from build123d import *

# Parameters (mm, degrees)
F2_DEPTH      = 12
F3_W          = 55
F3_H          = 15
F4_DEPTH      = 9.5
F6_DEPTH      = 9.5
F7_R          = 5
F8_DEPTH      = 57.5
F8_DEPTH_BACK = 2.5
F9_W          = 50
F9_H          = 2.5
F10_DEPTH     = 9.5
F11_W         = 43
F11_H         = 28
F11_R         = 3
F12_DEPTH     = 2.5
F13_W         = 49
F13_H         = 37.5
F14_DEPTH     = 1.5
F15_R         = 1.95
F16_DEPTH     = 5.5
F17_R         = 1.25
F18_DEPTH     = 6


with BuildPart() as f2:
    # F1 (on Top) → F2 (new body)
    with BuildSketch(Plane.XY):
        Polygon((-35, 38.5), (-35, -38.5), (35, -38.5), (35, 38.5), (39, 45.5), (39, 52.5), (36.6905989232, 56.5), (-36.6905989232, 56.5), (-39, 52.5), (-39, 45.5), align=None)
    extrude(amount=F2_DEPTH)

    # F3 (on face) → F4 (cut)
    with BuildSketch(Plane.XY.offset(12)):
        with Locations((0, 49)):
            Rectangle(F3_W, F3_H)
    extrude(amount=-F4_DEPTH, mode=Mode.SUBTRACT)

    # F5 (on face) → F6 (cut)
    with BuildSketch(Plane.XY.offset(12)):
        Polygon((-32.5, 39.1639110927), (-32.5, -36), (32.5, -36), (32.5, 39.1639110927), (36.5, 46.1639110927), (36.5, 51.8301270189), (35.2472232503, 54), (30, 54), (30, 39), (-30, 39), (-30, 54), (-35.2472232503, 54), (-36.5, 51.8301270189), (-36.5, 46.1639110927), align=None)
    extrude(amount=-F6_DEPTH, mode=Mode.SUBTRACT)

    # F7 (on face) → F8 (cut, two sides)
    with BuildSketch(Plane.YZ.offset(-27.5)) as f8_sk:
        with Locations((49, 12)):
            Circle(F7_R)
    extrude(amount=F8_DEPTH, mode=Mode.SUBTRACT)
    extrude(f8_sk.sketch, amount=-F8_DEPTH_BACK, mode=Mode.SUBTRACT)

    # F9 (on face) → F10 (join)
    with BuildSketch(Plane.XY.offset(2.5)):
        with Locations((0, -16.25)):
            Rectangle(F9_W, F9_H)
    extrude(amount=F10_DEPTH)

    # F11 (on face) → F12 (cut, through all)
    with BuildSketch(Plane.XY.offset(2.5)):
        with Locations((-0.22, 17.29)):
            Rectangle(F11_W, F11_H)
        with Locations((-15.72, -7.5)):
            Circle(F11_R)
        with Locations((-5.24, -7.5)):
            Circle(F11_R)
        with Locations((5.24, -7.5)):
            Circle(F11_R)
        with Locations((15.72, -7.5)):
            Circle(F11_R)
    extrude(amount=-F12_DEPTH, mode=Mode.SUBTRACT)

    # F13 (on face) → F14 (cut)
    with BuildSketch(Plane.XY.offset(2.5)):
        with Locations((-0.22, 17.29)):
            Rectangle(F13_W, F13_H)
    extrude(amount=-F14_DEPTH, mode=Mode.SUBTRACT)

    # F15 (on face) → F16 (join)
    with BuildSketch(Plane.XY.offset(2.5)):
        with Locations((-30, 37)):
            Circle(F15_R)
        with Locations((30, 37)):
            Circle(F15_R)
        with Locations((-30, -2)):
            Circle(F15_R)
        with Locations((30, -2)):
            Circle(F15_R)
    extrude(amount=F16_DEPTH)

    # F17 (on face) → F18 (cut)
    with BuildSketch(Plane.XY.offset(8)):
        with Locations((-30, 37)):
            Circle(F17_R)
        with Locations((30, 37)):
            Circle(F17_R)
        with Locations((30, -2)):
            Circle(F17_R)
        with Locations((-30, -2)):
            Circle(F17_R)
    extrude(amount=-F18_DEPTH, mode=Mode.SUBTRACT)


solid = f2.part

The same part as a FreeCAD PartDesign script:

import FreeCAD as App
import Part
import Sketcher
from FreeCAD import Vector
Q = App.Units.Quantity


def add_polygon(sketch, points):
    """Adds a closed chain of lines whose ends are joined by coincident constraints."""
    first, n = sketch.GeometryCount, len(points)
    for a, b in zip(points, points[1:] + points[:1]):
        sketch.addGeometry(Part.LineSegment(App.Vector(*a, 0), App.Vector(*b, 0)), False)
    for i in range(n):
        sketch.addConstraint(Sketcher.Constraint("Coincident", first + i, 2, first + (i + 1) % n, 1))

doc = App.newDocument("Part")
body = doc.addObject("PartDesign::Body", "Body")

# Sketch on XY plane
sketch1 = body.newObject("Sketcher::SketchObject", "Sketch")
sketch1.AttachmentSupport = (doc.getObject("XY_Plane"), [""])
sketch1.MapMode = "FlatFace"
add_polygon(sketch1, [(-35, 38.5), (-35, -38.5), (35, -38.5), (35, 38.5), (39, 45.5), (39, 52.5), (36.690599, 56.5), (-36.690599, 56.5), (-39, 52.5), (-39, 45.5)])  # lines 0-9
sketch1.addConstraint([
    Sketcher.Constraint("Vertical", 0),
    Sketcher.Constraint("Horizontal", 1),
    Sketcher.Constraint("Vertical", 2),
    Sketcher.Constraint("Vertical", 4),
    Sketcher.Constraint("Horizontal", 6),
    Sketcher.Constraint("Vertical", 8),
    Sketcher.Constraint("Symmetric", 0, 2, 2, 2, -1, 1),
    Sketcher.Constraint("Symmetric", 4, 2, 7, 2, -2),
    Sketcher.Constraint("Horizontal", 3, 2, 8, 2),
    Sketcher.Constraint("Horizontal", 2, 2, 9, 2),
    Sketcher.Constraint("Equal", 5, 7),
    Sketcher.Constraint("DistanceX", 1, 1, 1, 2, 70.0),
    Sketcher.Constraint("DistanceY", 0, 2, 0, 1, 77.0),
    Sketcher.Constraint("DistanceY", 4, 1, 4, 2, 7.0),
    Sketcher.Constraint("Angle", 5, Q("120 deg")),
    Sketcher.Constraint("DistanceX", -1, 1, 3, 2, 39.0),
    Sketcher.Constraint("DistanceY", 2, 2, 3, 2, 7.0),
    Sketcher.Constraint("DistanceY", 4, 2, 5, 2, 4.0),
])
pad1 = body.newObject("PartDesign::Pad", "Pad")
pad1.Profile = sketch1
pad1.Length = 12

# Sketch on XY plane
sketch2 = body.newObject("Sketcher::SketchObject", "Sketch001")
sketch2.AttachmentSupport = (doc.getObject("XY_Plane"), [""])
sketch2.MapMode = "FlatFace"
sketch2.AttachmentOffset = App.Placement(Vector(0, 0, 12), App.Rotation())
add_polygon(sketch2, [(-27.5, 56.5), (-27.5, 41.5), (27.5, 41.5), (27.5, 56.5)])  # lines 0-3
sketch2.addConstraint([
    Sketcher.Constraint("Vertical", 0),
    Sketcher.Constraint("Horizontal", 1),
    Sketcher.Constraint("Vertical", 2),
    Sketcher.Constraint("Horizontal", 3),
    Sketcher.Constraint("DistanceX", 1, 1, 1, 2, 55.0),
    Sketcher.Constraint("DistanceY", 0, 2, 0, 1, 15.0),
    Sketcher.Constraint("DistanceX", 0, 2, -1, 1, 27.5),
    Sketcher.Constraint("DistanceY", -1, 1, 0, 2, 41.5),
])
pocket1 = body.newObject("PartDesign::Pocket", "Pocket")
pocket1.Profile = sketch2
pocket1.Length = 9.5

# Sketch on XY plane
sketch3 = body.newObject("Sketcher::SketchObject", "Sketch002")
sketch3.AttachmentSupport = (doc.getObject("XY_Plane"), [""])
sketch3.MapMode = "FlatFace"
sketch3.AttachmentOffset = App.Placement(Vector(0, 0, 12), App.Rotation())
add_polygon(sketch3, [(-32.5, 39.163911), (-32.5, -36), (32.5, -36), (32.5, 39.163911), (36.5, 46.163911), (36.5, 51.830127), (35.247223, 54), (30, 54), (30, 39), (-30, 39), (-30, 54), (-35.247223, 54), (-36.5, 51.830127), (-36.5, 46.163911)])  # lines 0-13
sketch3.addConstraint([
    Sketcher.Constraint("Vertical", 0),
    Sketcher.Constraint("Horizontal", 1),
    Sketcher.Constraint("Vertical", 2),
    Sketcher.Constraint("Vertical", 4),
    Sketcher.Constraint("Horizontal", 6),
    Sketcher.Constraint("Vertical", 7),
    Sketcher.Constraint("Horizontal", 8),
    Sketcher.Constraint("Vertical", 9),
    Sketcher.Constraint("Horizontal", 10),
    Sketcher.Constraint("Vertical", 12),
    Sketcher.Constraint("Symmetric", 6, 2, 9, 2, -2),
    Sketcher.Constraint("Symmetric", 4, 2, 11, 2, -2),
    Sketcher.Constraint("Symmetric", 2, 2, 13, 2, -2),
    Sketcher.Constraint("Horizontal", 3, 2, 12, 2),
    Sketcher.Constraint("Equal", 6, 10),
    Sketcher.Constraint("DistanceX", 1, 1, 1, 2, 65.0),
    Sketcher.Constraint("DistanceX", 8, 2, 8, 1, 60.0),
    Sketcher.Constraint("DistanceY", 7, 2, 7, 1, 15.0),
    Sketcher.Constraint("Angle", 5, Q("120 deg")),
    Sketcher.Constraint("DistanceY", 0, 2, -1, 1, 36.0),
    Sketcher.Constraint("DistanceY", -1, 1, 5, 2, 54.0),
    Sketcher.Constraint("DistanceX", 2, 2, 3, 2, 4.0),
    Sketcher.Constraint("DistanceY", 2, 2, 3, 2, 7.0),
    Sketcher.Constraint("DistanceY", 0, 2, 0, 1, 75.163911),
    Sketcher.Constraint("DistanceX", 6, 2, 6, 1, 5.247223),
])
pocket2 = body.newObject("PartDesign::Pocket", "Pocket001")
pocket2.Profile = sketch3
pocket2.Length = 9.5

# Sketch on YZ plane
sketch4 = body.newObject("Sketcher::SketchObject", "Sketch003")
sketch4.AttachmentSupport = (doc.getObject("YZ_Plane"), [""])
sketch4.MapMode = "FlatFace"
sketch4.AttachmentOffset = App.Placement(Vector(0, 0, -27.5), App.Rotation())
sketch4.addGeometry(Part.Circle(Vector(49, 12, 0), Vector(0, 0, 1), 5), False)
sketch4.addConstraint([
    Sketcher.Constraint("Diameter", 0, 10.0),
    Sketcher.Constraint("DistanceX", -1, 1, 0, 3, 49.0),
    Sketcher.Constraint("DistanceY", -1, 1, 0, 3, 12.0),
])
pocket3 = body.newObject("PartDesign::Pocket", "Pocket002")
pocket3.Profile = sketch4
pocket3.Type = "TwoLengths"
pocket3.Length = 57.5
pocket3.Length2 = 2.5
pocket3.Reversed = True

# Sketch on XY plane
sketch5 = body.newObject("Sketcher::SketchObject", "Sketch004")
sketch5.AttachmentSupport = (doc.getObject("XY_Plane"), [""])
sketch5.MapMode = "FlatFace"
sketch5.AttachmentOffset = App.Placement(Vector(0, 0, 2.5), App.Rotation())
add_polygon(sketch5, [(-25, -15), (-25, -17.5), (25, -17.5), (25, -15)])  # lines 0-3
sketch5.addConstraint([
    Sketcher.Constraint("Vertical", 0),
    Sketcher.Constraint("Horizontal", 1),
    Sketcher.Constraint("Vertical", 2),
    Sketcher.Constraint("Horizontal", 3),
    Sketcher.Constraint("DistanceX", 1, 1, 1, 2, 50.0),
    Sketcher.Constraint("DistanceY", 0, 2, 0, 1, 2.5),
    Sketcher.Constraint("DistanceX", 0, 2, -1, 1, 25.0),
    Sketcher.Constraint("DistanceY", 2, 2, -1, 1, 15.0),
])
pad2 = body.newObject("PartDesign::Pad", "Pad001")
pad2.Profile = sketch5
pad2.Length = 9.5

# Sketch on XY plane
sketch6 = body.newObject("Sketcher::SketchObject", "Sketch005")
sketch6.AttachmentSupport = (doc.getObject("XY_Plane"), [""])
sketch6.MapMode = "FlatFace"
sketch6.AttachmentOffset = App.Placement(Vector(0, 0, 2.5), App.Rotation())
add_polygon(sketch6, [(-21.72, 31.29), (-21.72, 3.29), (21.28, 3.29), (21.28, 31.29)])  # lines 0-3
sketch6.addGeometry(Part.Circle(Vector(-15.72, -7.5, 0), Vector(0, 0, 1), 3), False)  # 4
sketch6.addGeometry(Part.Circle(Vector(-5.24, -7.5, 0), Vector(0, 0, 1), 3), False)  # 5
sketch6.addGeometry(Part.Circle(Vector(5.24, -7.5, 0), Vector(0, 0, 1), 3), False)  # 6
sketch6.addGeometry(Part.Circle(Vector(15.72, -7.5, 0), Vector(0, 0, 1), 3), False)  # 7
sketch6.addConstraint([
    Sketcher.Constraint("Vertical", 0),
    Sketcher.Constraint("Horizontal", 1),
    Sketcher.Constraint("Vertical", 2),
    Sketcher.Constraint("Horizontal", 3),
    Sketcher.Constraint("Equal", 4, 5),
    Sketcher.Constraint("Equal", 5, 6),
    Sketcher.Constraint("Equal", 6, 7),
    Sketcher.Constraint("Symmetric", 5, 3, 6, 3, -2),
    Sketcher.Constraint("Symmetric", 4, 3, 7, 3, -2),
    Sketcher.Constraint("Horizontal", 4, 3, 5, 3),
    Sketcher.Constraint("Diameter", 4, 6.0),
    Sketcher.Constraint("DistanceX", 1, 1, 1, 2, 43.0),
    Sketcher.Constraint("DistanceY", 0, 2, 0, 1, 28.0),
    Sketcher.Constraint("DistanceX", 0, 2, 4, 3, 6.0),
    Sketcher.Constraint("DistanceY", 4, 3, -1, 1, 7.5),
    Sketcher.Constraint("DistanceX", 4, 3, -1, 1, 15.72),
    Sketcher.Constraint("DistanceX", 5, 3, -1, 1, 5.24),
    Sketcher.Constraint("DistanceY", -1, 1, 0, 2, 3.29),
])
pocket4 = body.newObject("PartDesign::Pocket", "Pocket003")
pocket4.Profile = sketch6
pocket4.Type = "ThroughAll"

# Sketch on XY plane
sketch7 = body.newObject("Sketcher::SketchObject", "Sketch006")
sketch7.AttachmentSupport = (doc.getObject("XY_Plane"), [""])
sketch7.MapMode = "FlatFace"
sketch7.AttachmentOffset = App.Placement(Vector(0, 0, 2.5), App.Rotation())
add_polygon(sketch7, [(-24.72, 36.04), (-24.72, -1.46), (24.28, -1.46), (24.28, 36.04)])  # lines 0-3
sketch7.addConstraint([
    Sketcher.Constraint("Vertical", 0),
    Sketcher.Constraint("Horizontal", 1),
    Sketcher.Constraint("Vertical", 2),
    Sketcher.Constraint("Horizontal", 3),
    Sketcher.Constraint("DistanceX", 1, 1, 1, 2, 49.0),
    Sketcher.Constraint("DistanceY", 0, 2, 0, 1, 37.5),
    Sketcher.Constraint("DistanceX", 0, 2, -1, 1, 24.72),
    Sketcher.Constraint("DistanceY", 0, 2, -1, 1, 1.46),
])
pocket5 = body.newObject("PartDesign::Pocket", "Pocket004")
pocket5.Profile = sketch7
pocket5.Length = 1.5

# Sketch on XY plane
sketch8 = body.newObject("Sketcher::SketchObject", "Sketch007")
sketch8.AttachmentSupport = (doc.getObject("XY_Plane"), [""])
sketch8.MapMode = "FlatFace"
sketch8.AttachmentOffset = App.Placement(Vector(0, 0, 2.5), App.Rotation())
sketch8.addGeometry([
    Part.Circle(Vector(-30, 37, 0), Vector(0, 0, 1), 1.95),
    Part.Circle(Vector(30, 37, 0), Vector(0, 0, 1), 1.95),
    Part.Circle(Vector(-30, -2, 0), Vector(0, 0, 1), 1.95),
    Part.Circle(Vector(30, -2, 0), Vector(0, 0, 1), 1.95),
], False)
sketch8.addConstraint([
    Sketcher.Constraint("Equal", 0, 1),
    Sketcher.Constraint("Equal", 1, 2),
    Sketcher.Constraint("Equal", 2, 3),
    Sketcher.Constraint("Symmetric", 0, 3, 1, 3, -2),
    Sketcher.Constraint("Symmetric", 2, 3, 3, 3, -2),
    Sketcher.Constraint("Vertical", 0, 3, 2, 3),
    Sketcher.Constraint("Diameter", 0, 3.9),
    Sketcher.Constraint("DistanceX", 0, 3, -1, 1, 30.0),
    Sketcher.Constraint("DistanceY", -1, 1, 0, 3, 37.0),
    Sketcher.Constraint("DistanceY", 2, 3, -1, 1, 2.0),
])
pad3 = body.newObject("PartDesign::Pad", "Pad002")
pad3.Profile = sketch8
pad3.Length = 5.5

# Sketch on XY plane
sketch9 = body.newObject("Sketcher::SketchObject", "Sketch008")
sketch9.AttachmentSupport = (doc.getObject("XY_Plane"), [""])
sketch9.MapMode = "FlatFace"
sketch9.AttachmentOffset = App.Placement(Vector(0, 0, 8), App.Rotation())
sketch9.addGeometry([
    Part.Circle(Vector(-30, 37, 0), Vector(0, 0, 1), 1.25),
    Part.Circle(Vector(30, 37, 0), Vector(0, 0, 1), 1.25),
    Part.Circle(Vector(30, -2, 0), Vector(0, 0, 1), 1.25),
    Part.Circle(Vector(-30, -2, 0), Vector(0, 0, 1), 1.25),
], False)
sketch9.addConstraint([
    Sketcher.Constraint("Equal", 0, 1),
    Sketcher.Constraint("Equal", 1, 2),
    Sketcher.Constraint("Equal", 2, 3),
    Sketcher.Constraint("Symmetric", 0, 3, 1, 3, -2),
    Sketcher.Constraint("Symmetric", 2, 3, 3, 3, -2),
    Sketcher.Constraint("Vertical", 1, 3, 2, 3),
    Sketcher.Constraint("Diameter", 0, 2.5),
    Sketcher.Constraint("DistanceX", 0, 3, -1, 1, 30.0),
    Sketcher.Constraint("DistanceY", -1, 1, 0, 3, 37.0),
    Sketcher.Constraint("DistanceY", 2, 3, -1, 1, 2.0),
])
pocket6 = body.newObject("PartDesign::Pocket", "Pocket005")
pocket6.Profile = sketch9
pocket6.Length = 6

doc.recompute()
